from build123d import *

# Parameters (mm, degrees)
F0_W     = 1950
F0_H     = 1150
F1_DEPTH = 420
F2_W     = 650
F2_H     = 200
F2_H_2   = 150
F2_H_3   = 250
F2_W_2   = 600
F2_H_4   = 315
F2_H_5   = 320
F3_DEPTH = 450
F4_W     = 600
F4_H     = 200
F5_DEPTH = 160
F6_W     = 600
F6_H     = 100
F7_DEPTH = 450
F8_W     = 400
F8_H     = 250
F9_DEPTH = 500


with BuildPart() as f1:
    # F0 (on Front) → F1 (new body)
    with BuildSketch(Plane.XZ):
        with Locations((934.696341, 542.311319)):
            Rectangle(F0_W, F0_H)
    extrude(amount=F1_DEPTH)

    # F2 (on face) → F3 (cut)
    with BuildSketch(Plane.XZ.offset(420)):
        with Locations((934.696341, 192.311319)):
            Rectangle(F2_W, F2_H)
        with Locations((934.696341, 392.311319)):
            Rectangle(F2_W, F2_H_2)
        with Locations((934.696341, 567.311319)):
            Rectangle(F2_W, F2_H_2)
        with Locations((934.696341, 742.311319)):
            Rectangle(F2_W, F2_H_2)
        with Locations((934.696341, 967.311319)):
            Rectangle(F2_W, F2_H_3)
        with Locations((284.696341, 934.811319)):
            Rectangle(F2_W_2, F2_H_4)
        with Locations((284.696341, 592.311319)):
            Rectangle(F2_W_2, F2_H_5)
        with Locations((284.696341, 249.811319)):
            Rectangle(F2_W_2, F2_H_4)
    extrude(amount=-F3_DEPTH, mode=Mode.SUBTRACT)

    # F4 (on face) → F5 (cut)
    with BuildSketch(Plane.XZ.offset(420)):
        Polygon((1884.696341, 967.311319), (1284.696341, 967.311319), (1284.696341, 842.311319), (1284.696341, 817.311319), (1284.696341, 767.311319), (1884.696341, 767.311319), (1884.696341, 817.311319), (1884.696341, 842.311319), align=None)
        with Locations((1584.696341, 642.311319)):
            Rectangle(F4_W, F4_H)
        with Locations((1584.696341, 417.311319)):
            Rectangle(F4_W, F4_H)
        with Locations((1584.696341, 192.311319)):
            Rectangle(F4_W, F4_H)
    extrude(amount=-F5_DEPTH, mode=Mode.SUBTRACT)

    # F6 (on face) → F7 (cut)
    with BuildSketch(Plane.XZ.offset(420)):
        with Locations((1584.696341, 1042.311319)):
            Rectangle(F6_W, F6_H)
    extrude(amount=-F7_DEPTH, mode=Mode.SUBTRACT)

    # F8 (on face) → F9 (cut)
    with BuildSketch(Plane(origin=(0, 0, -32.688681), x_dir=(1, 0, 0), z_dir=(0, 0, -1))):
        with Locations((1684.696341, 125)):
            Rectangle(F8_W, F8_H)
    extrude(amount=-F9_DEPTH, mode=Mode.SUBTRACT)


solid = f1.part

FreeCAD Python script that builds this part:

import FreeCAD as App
import Part
import Sketcher

V = App.Vector
Q = App.Units.Quantity

doc = App.newDocument("Part")
body = doc.addObject("PartDesign::Body", "Body")

# Sketch on XZ plane
sketch1 = doc.addObject("Sketcher::SketchObject", "Sketch")
body.addObject(sketch1)
sketch1.AttachmentSupport = (doc.XZ_Plane, [""])
sketch1.MapMode = "FlatFace"
sketch1.addGeometry(Part.LineSegment(V(-40, 1117, 0), V(-40, -33, 0)), False)
sketch1.addGeometry(Part.LineSegment(V(-40, -33, 0), V(1910, -33, 0)), False)
sketch1.addGeometry(Part.LineSegment(V(1910, -33, 0), V(1910, 1117, 0)), False)
sketch1.addGeometry(Part.LineSegment(V(1910, 1117, 0), V(-40, 1117, 0)), False)
sketch1.addConstraint(Sketcher.Constraint("Coincident", 0, 2, 1, 1))
sketch1.addConstraint(Sketcher.Constraint("Coincident", 1, 2, 2, 1))
sketch1.addConstraint(Sketcher.Constraint("Coincident", 2, 2, 3, 1))
sketch1.addConstraint(Sketcher.Constraint("Coincident", 3, 2, 0, 1))
sketch1.addConstraint(Sketcher.Constraint("Vertical", 0))
sketch1.addConstraint(Sketcher.Constraint("Horizontal", 1))
sketch1.addConstraint(Sketcher.Constraint("Vertical", 2))
sketch1.addConstraint(Sketcher.Constraint("Horizontal", 3))
sketch1.addConstraint(Sketcher.Constraint("DistanceX", 1, 1, 1, 2, Q("1950 mm")))
sketch1.addConstraint(Sketcher.Constraint("DistanceY", 0, 2, 0, 1, Q("1150 mm")))
sketch1.addConstraint(Sketcher.Constraint("DistanceX", 0, 2, -1, 1, Q("40.303659 mm")))
sketch1.addConstraint(Sketcher.Constraint("DistanceY", 0, 2, -1, 1, Q("32.688681 mm")))
pad1 = doc.addObject("PartDesign::Pad", "Pad")
body.addObject(pad1)
pad1.Profile = sketch1
pad1.Length = 420

# Sketch on XZ plane
sketch2 = doc.addObject("Sketcher::SketchObject", "Sketch001")
body.addObject(sketch2)
sketch2.AttachmentSupport = (doc.XZ_Plane, [""])
sketch2.MapMode = "FlatFace"
sketch2.AttachmentOffset = App.Placement(V(0, 0, 420), App.Rotation())
sketch2.addGeometry(Part.LineSegment(V(610, 292, 0), V(610, 92, 0)), False)
sketch2.addGeometry(Part.LineSegment(V(610, 92, 0), V(1260, 92, 0)), False)
sketch2.addGeometry(Part.LineSegment(V(1260, 92, 0), V(1260, 292, 0)), False)
sketch2.addGeometry(Part.LineSegment(V(1260, 292, 0), V(610, 292, 0)), False)
sketch2.addGeometry(Part.LineSegment(V(610, 467, 0), V(610, 317, 0)), False)
sketch2.addGeometry(Part.LineSegment(V(610, 317, 0), V(1260, 317, 0)), False)
sketch2.addGeometry(Part.LineSegment(V(1260, 317, 0), V(1260, 467, 0)), False)
sketch2.addGeometry(Part.LineSegment(V(1260, 467, 0), V(610, 467, 0)), False)
sketch2.addGeometry(Part.LineSegment(V(610, 642, 0), V(610, 492, 0)), False)
sketch2.addGeometry(Part.LineSegment(V(610, 492, 0), V(1260, 492, 0)), False)
sketch2.addGeometry(Part.LineSegment(V(1260, 492, 0), V(1260, 642, 0)), False)
sketch2.addGeometry(Part.LineSegment(V(1260, 642, 0), V(610, 642, 0)), False)
sketch2.addGeometry(Part.LineSegment(V(610, 817, 0), V(610, 667, 0)), False)
sketch2.addGeometry(Part.LineSegment(V(610, 667, 0), V(1260, 667, 0)), False)
sketch2.addGeometry(Part.LineSegment(V(1260, 667, 0), V(1260, 817, 0)), False)
sketch2.addGeometry(Part.LineSegment(V(1260, 817, 0), V(610, 817, 0)), False)
sketch2.addGeometry(Part.LineSegment(V(610, 1092, 0), V(610, 842, 0)), False)
sketch2.addGeometry(Part.LineSegment(V(610, 842, 0), V(1260, 842, 0)), False)
sketch2.addGeometry(Part.LineSegment(V(1260, 842, 0), V(1260, 1092, 0)), False)
sketch2.addGeometry(Part.LineSegment(V(1260, 1092, 0), V(610, 1092, 0)), False)
sketch2.addGeometry(Part.LineSegment(V(-15, 1092, 0), V(-15, 777, 0)), False)
sketch2.addGeometry(Part.LineSegment(V(-15, 777, 0), V(585, 777, 0)), False)
sketch2.addGeometry(Part.LineSegment(V(585, 777, 0), V(585, 1092, 0)), False)
sketch2.addGeometry(Part.LineSegment(V(585, 1092, 0), V(-15, 1092, 0)), False)
sketch2.addGeometry(Part.LineSegment(V(-15, 752, 0), V(-15, 432, 0)), False)
sketch2.addGeometry(Part.LineSegment(V(-15, 432, 0), V(585, 432, 0)), False)
sketch2.addGeometry(Part.LineSegment(V(585, 432, 0), V(585, 752, 0)), False)
sketch2.addGeometry(Part.LineSegment(V(585, 752, 0), V(-15, 752, 0)), False)
sketch2.addGeometry(Part.LineSegment(V(-15, 407, 0), V(-15, 92, 0)), False)
sketch2.addGeometry(Part.LineSegment(V(-15, 92, 0), V(585, 92, 0)), False)
sketch2.addGeometry(Part.LineSegment(V(585, 92, 0), V(585, 407, 0)), False)
sketch2.addGeometry(Part.LineSegment(V(585, 407, 0), V(-15, 407, 0)), False)
sketch2.addConstraint(Sketcher.Constraint("Coincident", 0, 2, 1, 1))
sketch2.addConstraint(Sketcher.Constraint("Coincident", 1, 2, 2, 1))
sketch2.addConstraint(Sketcher.Constraint("Coincident", 2, 2, 3, 1))
sketch2.addConstraint(Sketcher.Constraint("Coincident", 3, 2, 0, 1))
sketch2.addConstraint(Sketcher.Constraint("Coincident", 4, 2, 5, 1))
sketch2.addConstraint(Sketcher.Constraint("Coincident", 5, 2, 6, 1))
sketch2.addConstraint(Sketcher.Constraint("Coincident", 6, 2, 7, 1))
sketch2.addConstraint(Sketcher.Constraint("Coincident", 7, 2, 4, 1))
sketch2.addConstraint(Sketcher.Constraint("Coincident", 8, 2, 9, 1))
sketch2.addConstraint(Sketcher.Constraint("Coincident", 9, 2, 10, 1))
sketch2.addConstraint(Sketcher.Constraint("Coincident", 10, 2, 11, 1))
sketch2.addConstraint(Sketcher.Constraint("Coincident", 11, 2, 8, 1))
sketch2.addConstraint(Sketcher.Constraint("Coincident", 12, 2, 13, 1))
sketch2.addConstraint(Sketcher.Constraint("Coincident", 13, 2, 14, 1))
sketch2.addConstraint(Sketcher.Constraint("Coincident", 14, 2, 15, 1))
sketch2.addConstraint(Sketcher.Constraint("Coincident", 15, 2, 12, 1))
sketch2.addConstraint(Sketcher.Constraint("Coincident", 16, 2, 17, 1))
sketch2.addConstraint(Sketcher.Constraint("Coincident", 17, 2, 18, 1))
sketch2.addConstraint(Sketcher.Constraint("Coincident", 18, 2, 19, 1))
sketch2.addConstraint(Sketcher.Constraint("Coincident", 19, 2, 16, 1))
sketch2.addConstraint(Sketcher.Constraint("Coincident", 20, 2, 21, 1))
sketch2.addConstraint(Sketcher.Constraint("Coincident", 21, 2, 22, 1))
sketch2.addConstraint(Sketcher.Constraint("Coincident", 22, 2, 23, 1))
sketch2.addConstraint(Sketcher.Constraint("Coincident", 23, 2, 20, 1))
sketch2.addConstraint(Sketcher.Constraint("Coincident", 24, 2, 25, 1))
sketch2.addConstraint(Sketcher.Constraint("Coincident", 25, 2, 26, 1))
sketch2.addConstraint(Sketcher.Constraint("Coincident", 26, 2, 27, 1))
sketch2.addConstraint(Sketcher.Constraint("Coincident", 27, 2, 24, 1))
sketch2.addConstraint(Sketcher.Constraint("Coincident", 28, 2, 29, 1))
sketch2.addConstraint(Sketcher.Constraint("Coincident", 29, 2, 30, 1))
sketch2.addConstraint(Sketcher.Constraint("Coincident", 30, 2, 31, 1))
sketch2.addConstraint(Sketcher.Constraint("Coincident", 31, 2, 28, 1))
sketch2.addConstraint(Sketcher.Constraint("Vertical", 0))
sketch2.addConstraint(Sketcher.Constraint("Horizontal", 1))
sketch2.addConstraint(Sketcher.Constraint("Vertical", 2))
sketch2.addConstraint(Sketcher.Constraint("Horizontal", 3))
sketch2.addConstraint(Sketcher.Constraint("Vertical", 4))
sketch2.addConstraint(Sketcher.Constraint("Horizontal", 5))
sketch2.addConstraint(Sketcher.Constraint("Vertical", 6))
sketch2.addConstraint(Sketcher.Constraint("Horizontal", 7))
sketch2.addConstraint(Sketcher.Constraint("Vertical", 8))
sketch2.addConstraint(Sketcher.Constraint("Horizontal", 9))
sketch2.addConstraint(Sketcher.Constraint("Vertical", 10))
sketch2.addConstraint(Sketcher.Constraint("Horizontal", 11))
sketch2.addConstraint(Sketcher.Constraint("Vertical", 12))
sketch2.addConstraint(Sketcher.Constraint("Horizontal", 13))
sketch2.addConstraint(Sketcher.Constraint("Vertical", 14))
sketch2.addConstraint(Sketcher.Constraint("Horizontal", 15))
sketch2.addConstraint(Sketcher.Constraint("Vertical", 16))
sketch2.addConstraint(Sketcher.Constraint("Horizontal", 17))
sketch2.addConstraint(Sketcher.Constraint("Vertical", 18))
sketch2.addConstraint(Sketcher.Constraint("Horizontal", 19))
sketch2.addConstraint(Sketcher.Constraint("Vertical", 20))
sketch2.addConstraint(Sketcher.Constraint("Horizontal", 21))
sketch2.addConstraint(Sketcher.Constraint("Vertical", 22))
sketch2.addConstraint(Sketcher.Constraint("Horizontal", 23))
sketch2.addConstraint(Sketcher.Constraint("Vertical", 24))
sketch2.addConstraint(Sketcher.Constraint("Horizontal", 25))
sketch2.addConstraint(Sketcher.Constraint("Vertical", 26))
sketch2.addConstraint(Sketcher.Constraint("Horizontal", 27))
sketch2.addConstraint(Sketcher.Constraint("Vertical", 28))
sketch2.addConstraint(Sketcher.Constraint("Horizontal", 29))
sketch2.addConstraint(Sketcher.Constraint("Vertical", 30))
sketch2.addConstraint(Sketcher.Constraint("Horizontal", 31))
sketch2.addConstraint(Sketcher.Constraint("Horizontal", 19, 2, 22, 2))
sketch2.addConstraint(Sketcher.Constraint("Horizontal", 1, 2, 28, 2))
sketch2.addConstraint(Sketcher.Constraint("Vertical", 3, 2, 4, 2))
sketch2.addConstraint(Sketcher.Constraint("Vertical", 2, 2, 5, 2))
sketch2.addConstraint(Sketcher.Constraint("Vertical", 7, 2, 8, 2))
sketch2.addConstraint(Sketcher.Constraint("Vertical", 6, 2, 9, 2))
sketch2.addConstraint(Sketcher.Constraint("Vertical", 11, 2, 12, 2))
sketch2.addConstraint(Sketcher.Constraint("Vertical", 10, 2, 13, 2))
sketch2.addConstraint(Sketcher.Constraint("Vertical", 15, 2, 16, 2))
sketch2.addConstraint(Sketcher.Constraint("Vertical", 14, 2, 17, 2))
sketch2.addConstraint(Sketcher.Constraint("Vertical", 23, 2, 24, 2))
sketch2.addConstraint(Sketcher.Constraint("Vertical", 22, 2, 25, 2))
sketch2.addConstraint(Sketcher.Constraint("Vertical", 27, 2, 28, 2))
sketch2.addConstraint(Sketcher.Constraint("Vertical", 26, 2, 29, 2))
sketch2.addConstraint(Sketcher.Constraint("Equal", 6, 8))
sketch2.addConstraint(Sketcher.Constraint("Equal", 10, 12))
sketch2.addConstraint(Sketcher.Constraint("Equal", 22, 28))
sketch2.addConstraint(Sketcher.Constraint("DistanceX", 1, 1, 1, 2, Q("650 mm")))
sketch2.addConstraint(Sketcher.Constraint("DistanceX", 21, 1, 21, 2, Q("600 mm")))
sketch2.addConstraint(Sketcher.Constraint("DistanceY", 0, 2, 0, 1, Q("200 mm")))
sketch2.addConstraint(Sketcher.Constraint("DistanceY", 4, 2, 4, 1, Q("150 mm")))
sketch2.addConstraint(Sketcher.Constraint("DistanceY", 16, 2, 16, 1, Q("250 mm")))
sketch2.addConstraint(Sketcher.Constraint("DistanceY", 20, 2, 20, 1, Q("315 mm")))
sketch2.addConstraint(Sketcher.Constraint("DistanceY", 24, 2, 24, 1, Q("320 mm")))
sketch2.addConstraint(Sketcher.Constraint("DistanceY", 3, 2, 4, 2, Q("25 mm")))
sketch2.addConstraint(Sketcher.Constraint("DistanceY", 7, 2, 8, 2, Q("25 mm")))
sketch2.addConstraint(Sketcher.Constraint("DistanceY", 11, 2, 12, 2, Q("25 mm")))
sketch2.addConstraint(Sketcher.Constraint("DistanceY", 15, 2, 16, 2, Q("25 mm")))
sketch2.addConstraint(Sketcher.Constraint("DistanceX", 20, 2, 15, 2, Q("625 mm")))
sketch2.addConstraint(Sketcher.Constraint("DistanceY", 24, 2, 20, 2, Q("345 mm")))
sketch2.addConstraint(Sketcher.Constraint("DistanceX", -1, 1, 0, 2, Q("609.696341 mm")))
sketch2.addConstraint(Sketcher.Constraint("DistanceY", -1, 1, 0, 2, Q("92.311319 mm")))
pocket1 = doc.addObject("PartDesign::Pocket", "Pocket")
body.addObject(pocket1)
pocket1.Profile = sketch2
pocket1.Length = 450

# Sketch on XZ plane
sketch3 = doc.addObject("Sketcher::SketchObject", "Sketch002")
body.addObject(sketch3)
sketch3.AttachmentSupport = (doc.XZ_Plane, [""])
sketch3.MapMode = "FlatFace"
sketch3.AttachmentOffset = App.Placement(V(0, 0, 420), App.Rotation())
sketch3.addGeometry(Part.LineSegment(V(1885, 967, 0), V(1285, 967, 0)), False)
sketch3.addGeometry(Part.LineSegment(V(1285, 967, 0), V(1285, 767, 0)), False)
sketch3.addGeometry(Part.LineSegment(V(1285, 767, 0), V(1885, 767, 0)), False)
sketch3.addGeometry(Part.LineSegment(V(1885, 767, 0), V(1885, 967, 0)), False)
sketch3.addGeometry(Part.LineSegment(V(1285, 742, 0), V(1285, 542, 0)), False)
sketch3.addGeometry(Part.LineSegment(V(1285, 542, 0), V(1885, 542, 0)), False)
sketch3.addGeometry(Part.LineSegment(V(1885, 542, 0), V(1885, 742, 0)), False)
sketch3.addGeometry(Part.LineSegment(V(1885, 742, 0), V(1285, 742, 0)), False)
sketch3.addGeometry(Part.LineSegment(V(1285, 517, 0), V(1285, 317, 0)), False)
sketch3.addGeometry(Part.LineSegment(V(1285, 317, 0), V(1885, 317, 0)), False)
sketch3.addGeometry(Part.LineSegment(V(1885, 317, 0), V(1885, 517, 0)), False)
sketch3.addGeometry(Part.LineSegment(V(1885, 517, 0), V(1285, 517, 0)), False)
sketch3.addGeometry(Part.LineSegment(V(1285, 292, 0), V(1285, 92, 0)), False)
sketch3.addGeometry(Part.LineSegment(V(1285, 92, 0), V(1885, 92, 0)), False)
sketch3.addGeometry(Part.LineSegment(V(1885, 92, 0), V(1885, 292, 0)), False)
sketch3.addGeometry(Part.LineSegment(V(1885, 292, 0), V(1285, 292, 0)), False)
sketch3.addConstraint(Sketcher.Constraint("Coincident", 0, 2, 1, 1))
sketch3.addConstraint(Sketcher.Constraint("Coincident", 1, 2, 2, 1))
sketch3.addConstraint(Sketcher.Constraint("Coincident", 2, 2, 3, 1))
sketch3.addConstraint(Sketcher.Constraint("Coincident", 3, 2, 0, 1))
sketch3.addConstraint(Sketcher.Constraint("Coincident", 4, 2, 5, 1))
sketch3.addConstraint(Sketcher.Constraint("Coincident", 5, 2, 6, 1))
sketch3.addConstraint(Sketcher.Constraint("Coincident", 6, 2, 7, 1))
sketch3.addConstraint(Sketcher.Constraint("Coincident", 7, 2, 4, 1))
sketch3.addConstraint(Sketcher.Constraint("Coincident", 8, 2, 9, 1))
sketch3.addConstraint(Sketcher.Constraint("Coincident", 9, 2, 10, 1))
sketch3.addConstraint(Sketcher.Constraint("Coincident", 10, 2, 11, 1))
sketch3.addConstraint(Sketcher.Constraint("Coincident", 11, 2, 8, 1))
sketch3.addConstraint(Sketcher.Constraint("Coincident", 12, 2, 13, 1))
sketch3.addConstraint(Sketcher.Constraint("Coincident", 13, 2, 14, 1))
sketch3.addConstraint(Sketcher.Constraint("Coincident", 14, 2, 15, 1))
sketch3.addConstraint(Sketcher.Constraint("Coincident", 15, 2, 12, 1))
sketch3.addConstraint(Sketcher.Constraint("Horizontal", 0))
sketch3.addConstraint(Sketcher.Constraint("Vertical", 1))
sketch3.addConstraint(Sketcher.Constraint("Horizontal", 2))
sketch3.addConstraint(Sketcher.Constraint("Vertical", 3))
sketch3.addConstraint(Sketcher.Constraint("Vertical", 4))
sketch3.addConstraint(Sketcher.Constraint("Horizontal", 5))
sketch3.addConstraint(Sketcher.Constraint("Vertical", 6))
sketch3.addConstraint(Sketcher.Constraint("Horizontal", 7))
sketch3.addConstraint(Sketcher.Constraint("Vertical", 8))
sketch3.addConstraint(Sketcher.Constraint("Horizontal", 9))
sketch3.addConstraint(Sketcher.Constraint("Vertical", 10))
sketch3.addConstraint(Sketcher.Constraint("Horizontal", 11))
sketch3.addConstraint(Sketcher.Constraint("Vertical", 12))
sketch3.addConstraint(Sketcher.Constraint("Horizontal", 13))
sketch3.addConstraint(Sketcher.Constraint("Vertical", 14))
sketch3.addConstraint(Sketcher.Constraint("Horizontal", 15))
sketch3.addConstraint(Sketcher.Constraint("Vertical", 1, 2, 4, 2))
sketch3.addConstraint(Sketcher.Constraint("Vertical", 3, 2, 5, 2))
sketch3.addConstraint(Sketcher.Constraint("Vertical", 7, 2, 8, 2))
sketch3.addConstraint(Sketcher.Constraint("Vertical", 6, 2, 9, 2))
sketch3.addConstraint(Sketcher.Constraint("Vertical", 11, 2, 12, 2))
sketch3.addConstraint(Sketcher.Constraint("Vertical", 10, 2, 13, 2))
sketch3.addConstraint(Sketcher.Constraint("Equal", 3, 4))
sketch3.addConstraint(Sketcher.Constraint("Equal", 6, 8))
sketch3.addConstraint(Sketcher.Constraint("Equal", 10, 12))
sketch3.addConstraint(Sketcher.Constraint("DistanceX", 0, 2, 0, 1, Q("600 mm")))
sketch3.addConstraint(Sketcher.Constraint("DistanceY", 1, 2, 1, 1, Q("200 mm")))
sketch3.addConstraint(Sketcher.Constraint("DistanceY", 4, 2, 1, 2, Q("225 mm")))
sketch3.addConstraint(Sketcher.Constraint("DistanceY", 8, 2, 4, 2, Q("225 mm")))
sketch3.addConstraint(Sketcher.Constraint("DistanceY", 12, 2, 8, 2, Q("225 mm")))
sketch3.addConstraint(Sketcher.Constraint("DistanceX", -1, 1, 0, 2, Q("1284.696341 mm")))
sketch3.addConstraint(Sketcher.Constraint("DistanceY", -1, 1, 0, 2, Q("967.311319 mm")))
pocket2 = doc.addObject("PartDesign::Pocket", "Pocket001")
body.addObject(pocket2)
pocket2.Profile = sketch3
pocket2.Length = 160

# Sketch on XZ plane
sketch4 = doc.addObject("Sketcher::SketchObject", "Sketch003")
body.addObject(sketch4)
sketch4.AttachmentSupport = (doc.XZ_Plane, [""])
sketch4.MapMode = "FlatFace"
sketch4.AttachmentOffset = App.Placement(V(0, 0, 420), App.Rotation())
sketch4.addGeometry(Part.LineSegment(V(1285, 1092, 0), V(1285, 992, 0)), False)
sketch4.addGeometry(Part.LineSegment(V(1285, 992, 0), V(1885, 992, 0)), False)
sketch4.addGeometry(Part.LineSegment(V(1885, 992, 0), V(1885, 1092, 0)), False)
sketch4.addGeometry(Part.LineSegment(V(1885, 1092, 0), V(1285, 1092, 0)), False)
sketch4.addConstraint(Sketcher.Constraint("Coincident", 0, 2, 1, 1))
sketch4.addConstraint(Sketcher.Constraint("Coincident", 1, 2, 2, 1))
sketch4.addConstraint(Sketcher.Constraint("Coincident", 2, 2, 3, 1))
sketch4.addConstraint(Sketcher.Constraint("Coincident", 3, 2, 0, 1))
sketch4.addConstraint(Sketcher.Constraint("Vertical", 0))
sketch4.addConstraint(Sketcher.Constraint("Horizontal", 1))
sketch4.addConstraint(Sketcher.Constraint("Vertical", 2))
sketch4.addConstraint(Sketcher.Constraint("Horizontal", 3))
sketch4.addConstraint(Sketcher.Constraint("DistanceX", 1, 1, 1, 2, Q("600 mm")))
sketch4.addConstraint(Sketcher.Constraint("DistanceY", 0, 2, 0, 1, Q("100 mm")))
sketch4.addConstraint(Sketcher.Constraint("DistanceX", -1, 1, 0, 2, Q("1284.696341 mm")))
sketch4.addConstraint(Sketcher.Constraint("DistanceY", -1, 1, 0, 2, Q("992.311319 mm")))
pocket3 = doc.addObject("PartDesign::Pocket", "Pocket002")
body.addObject(pocket3)
pocket3.Profile = sketch4
pocket3.Length = 450

# Sketch on XY plane
sketch5 = doc.addObject("Sketcher::SketchObject", "Sketch004")
body.addObject(sketch5)
sketch5.AttachmentSupport = (doc.XY_Plane, [""])
sketch5.MapMode = "FlatFace"
sketch5.AttachmentOffset = App.Placement(V(0, 0, -32.688681), App.Rotation())
sketch5.addGeometry(Part.LineSegment(V(1485, -250, 0), V(1485, 0, 0)), False)
sketch5.addGeometry(Part.LineSegment(V(1485, 0, 0), V(1885, 0, 0)), False)
sketch5.addGeometry(Part.LineSegment(V(1885, 0, 0), V(1885, -250, 0)), False)
sketch5.addGeometry(Part.LineSegment(V(1885, -250, 0), V(1485, -250, 0)), False)
sketch5.addConstraint(Sketcher.Constraint("Coincident", 0, 2, 1, 1))
sketch5.addConstraint(Sketcher.Constraint("Coincident", 1, 2, 2, 1))
sketch5.addConstraint(Sketcher.Constraint("Coincident", 2, 2, 3, 1))
sketch5.addConstraint(Sketcher.Constraint("Coincident", 3, 2, 0, 1))
sketch5.addConstraint(Sketcher.Constraint("Vertical", 0))
sketch5.addConstraint(Sketcher.Constraint("Horizontal", 1))
sketch5.addConstraint(Sketcher.Constraint("Vertical", 2))
sketch5.addConstraint(Sketcher.Constraint("Horizontal", 3))
sketch5.addConstraint(Sketcher.Constraint("PointOnObject", 0, 2, -1))
sketch5.addConstraint(Sketcher.Constraint("DistanceX", 1, 1, 1, 2, Q("400 mm")))
sketch5.addConstraint(Sketcher.Constraint("DistanceY", 0, 1, 0, 2, Q("250 mm")))
sketch5.addConstraint(Sketcher.Constraint("DistanceX", -1, 1, 0, 2, Q("1484.696341 mm")))
pocket4 = doc.addObject("PartDesign::Pocket", "Pocket003")
body.addObject(pocket4)
pocket4.Profile = sketch5
pocket4.Length = 500
pocket4.Reversed = True

doc.recompute()
